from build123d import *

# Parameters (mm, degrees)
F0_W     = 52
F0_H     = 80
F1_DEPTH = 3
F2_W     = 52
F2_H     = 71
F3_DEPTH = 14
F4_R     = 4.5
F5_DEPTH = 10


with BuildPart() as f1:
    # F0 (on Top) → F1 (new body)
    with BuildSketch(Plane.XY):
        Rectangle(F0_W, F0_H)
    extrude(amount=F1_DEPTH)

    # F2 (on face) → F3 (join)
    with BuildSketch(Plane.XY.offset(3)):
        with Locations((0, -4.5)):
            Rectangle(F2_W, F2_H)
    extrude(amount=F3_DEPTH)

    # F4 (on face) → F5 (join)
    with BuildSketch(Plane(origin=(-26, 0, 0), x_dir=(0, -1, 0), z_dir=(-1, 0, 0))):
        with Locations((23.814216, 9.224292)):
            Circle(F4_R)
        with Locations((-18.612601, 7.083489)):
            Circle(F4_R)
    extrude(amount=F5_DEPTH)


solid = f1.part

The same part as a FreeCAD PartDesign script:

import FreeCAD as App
import Part
import Sketcher


def add_polygon(sketch, points):
    """Adds a closed chain of lines whose ends are joined by coincident constraints."""
    first, n = sketch.GeometryCount, len(points)
    for a, b in zip(points, points[1:] + points[:1]):
        sketch.addGeometry(Part.LineSegment(App.Vector(*a, 0), App.Vector(*b, 0)), False)
    for i in range(n):
        sketch.addConstraint(Sketcher.Constraint("Coincident", first + i, 2, first + (i + 1) % n, 1))

doc = App.newDocument("Part")
body = doc.addObject("PartDesign::Body", "Body")

# Sketch on XY plane
sketch1 = body.newObject("Sketcher::SketchObject", "Sketch")
sketch1.AttachmentSupport = (doc.getObject("XY_Plane"), [""])
sketch1.MapMode = "FlatFace"
add_polygon(sketch1, [(-26, 40), (-26, -40), (26, -40), (26, 40)])  # lines 0-3
sketch1.addConstraint([
    Sketcher.Constraint("Vertical", 0),
    Sketcher.Constraint("Horizontal", 1),
    Sketcher.Constraint("Vertical", 2),
    Sketcher.Constraint("Horizontal", 3),
    Sketcher.Constraint("Symmetric", 0, 2, 2, 2, -1, 1),
    Sketcher.Constraint("DistanceX", 1, 1, 1, 2, 52.0),
    Sketcher.Constraint("DistanceY", 0, 2, 0, 1, 80.0),
])
pad1 = body.newObject("PartDesign::Pad", "Pad")
pad1.Profile = sketch1
pad1.Length = 3

# Sketch on XY plane
sketch2 = body.newObject("Sketcher::SketchObject", "Sketch001")
sketch2.AttachmentSupport = (doc.getObject("XY_Plane"), [""])
sketch2.MapMode = "FlatFace"
sketch2.AttachmentOffset = App.Placement(App.Vector(0, 0, 3), App.Rotation())
add_polygon(sketch2, [(-26, 31), (-26, -40), (26, -40), (26, 31)])  # lines 0-3
sketch2.addConstraint([
    Sketcher.Constraint("Vertical", 0),
    Sketcher.Constraint("Horizontal", 1),
    Sketcher.Constraint("Vertical", 2),
    Sketcher.Constraint("Horizontal", 3),
    Sketcher.Constraint("DistanceX", 1, 1, 1, 2, 52.0),
    Sketcher.Constraint("DistanceY", 0, 2, 0, 1, 71.0),
    Sketcher.Constraint("DistanceX", 0, 2, -1, 1, 26.0),
    Sketcher.Constraint("DistanceY", 0, 2, -1, 1, 40.0),
])
pad2 = body.newObject("PartDesign::Pad", "Pad001")
pad2.Profile = sketch2
pad2.Length = 14

# Sketch on YZ plane
sketch3 = body.newObject("Sketcher::SketchObject", "Sketch002")
sketch3.AttachmentSupport = (doc.getObject("YZ_Plane"), [""])
sketch3.MapMode = "FlatFace"
sketch3.AttachmentOffset = App.Placement(App.Vector(0, 0, -26), App.Rotation())
sketch3.addGeometry([
    Part.Circle(App.Vector(-23.8, 9.2, 0), App.Vector(0, 0, 1), 4.5),
    Part.Circle(App.Vector(18.6, 7.1, 0), App.Vector(0, 0, 1), 4.5),
], False)
sketch3.addConstraint([
    Sketcher.Constraint("Equal", 0, 1),
    Sketcher.Constraint("Diameter", 0, 9.0),
    Sketcher.Constraint("DistanceX", -1, 1, 1, 3, 18.612601),
    Sketcher.Constraint("DistanceY", -1, 1, 1, 3, 7.083489),
    Sketcher.Constraint("DistanceX", 0, 3, -1, 1, 23.814216),
    Sketcher.Constraint("DistanceY", -1, 1, 0, 3, 9.224292),
])
pad3 = body.newObject("PartDesign::Pad", "Pad002")
pad3.Profile = sketch3
pad3.Length = 10
pad3.Reversed = True

doc.recompute()
